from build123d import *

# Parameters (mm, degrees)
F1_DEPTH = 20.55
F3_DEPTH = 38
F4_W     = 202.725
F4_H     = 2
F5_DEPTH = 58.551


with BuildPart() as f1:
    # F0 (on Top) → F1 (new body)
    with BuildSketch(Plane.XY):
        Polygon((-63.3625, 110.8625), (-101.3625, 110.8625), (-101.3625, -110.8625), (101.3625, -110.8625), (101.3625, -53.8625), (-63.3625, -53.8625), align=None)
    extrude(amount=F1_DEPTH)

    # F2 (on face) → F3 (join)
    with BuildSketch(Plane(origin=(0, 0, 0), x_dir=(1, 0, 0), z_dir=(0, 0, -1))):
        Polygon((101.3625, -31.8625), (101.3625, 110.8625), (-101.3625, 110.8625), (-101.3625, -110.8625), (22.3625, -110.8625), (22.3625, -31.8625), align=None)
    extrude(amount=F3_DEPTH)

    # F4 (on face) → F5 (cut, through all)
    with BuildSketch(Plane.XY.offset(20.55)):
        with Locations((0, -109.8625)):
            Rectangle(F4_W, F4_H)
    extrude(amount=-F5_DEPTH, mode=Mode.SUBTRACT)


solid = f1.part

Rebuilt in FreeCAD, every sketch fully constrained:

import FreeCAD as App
import Part
import Sketcher


def add_polygon(sketch, points):
    """Adds a closed chain of lines whose ends are joined by coincident constraints."""
    first, n = sketch.GeometryCount, len(points)
    for a, b in zip(points, points[1:] + points[:1]):
        sketch.addGeometry(Part.LineSegment(App.Vector(*a, 0), App.Vector(*b, 0)), False)
    for i in range(n):
        sketch.addConstraint(Sketcher.Constraint("Coincident", first + i, 2, first + (i + 1) % n, 1))

doc = App.newDocument("Part")
body = doc.addObject("PartDesign::Body", "Body")

# Sketch on XY plane
sketch1 = body.newObject("Sketcher::SketchObject", "Sketch")
sketch1.AttachmentSupport = (doc.getObject("XY_Plane"), [""])
sketch1.MapMode = "FlatFace"
add_polygon(sketch1, [(-63.3625, 110.8625), (-101.3625, 110.8625), (-101.3625, -110.8625), (101.3625, -110.8625), (101.3625, -53.8625), (-63.3625, -53.8625)])  # lines 0-5
sketch1.addConstraint([
    Sketcher.Constraint("Horizontal", 0),
    Sketcher.Constraint("Vertical", 1),
    Sketcher.Constraint("Horizontal", 2),
    Sketcher.Constraint("Vertical", 3),
    Sketcher.Constraint("Horizontal", 4),
    Sketcher.Constraint("Vertical", 5),
    Sketcher.Constraint("Symmetric", 0, 2, 2, 2, -1, 1),
    Sketcher.Constraint("Equal", 4, 5),
    Sketcher.Constraint("DistanceX", 0, 2, 0, 1, 38.0),
    Sketcher.Constraint("DistanceY", 3, 1, 3, 2, 57.0),
    Sketcher.Constraint("DistanceX", 2, 1, 2, 2, 202.725),
])
pad1 = body.newObject("PartDesign::Pad", "Pad")
pad1.Profile = sketch1
pad1.Length = 20.55

# Sketch on XY plane
sketch2 = body.newObject("Sketcher::SketchObject", "Sketch001")
sketch2.AttachmentSupport = (doc.getObject("XY_Plane"), [""])
sketch2.MapMode = "FlatFace"
add_polygon(sketch2, [(101.3625, 31.8625), (101.3625, -110.8625), (-101.3625, -110.8625), (-101.3625, 110.8625), (22.3625, 110.8625), (22.3625, 31.8625)])  # lines 0-5
sketch2.addConstraint([
    Sketcher.Constraint("Vertical", 0),
    Sketcher.Constraint("Horizontal", 1),
    Sketcher.Constraint("Vertical", 2),
    Sketcher.Constraint("Horizontal", 3),
    Sketcher.Constraint("Vertical", 4),
    Sketcher.Constraint("Horizontal", 5),
    Sketcher.Constraint("Symmetric", 0, 2, 2, 2, -1, 1),
    Sketcher.Constraint("Equal", 5, 4),
    Sketcher.Constraint("DistanceX", 5, 1, 5, 2, 79.0),
    Sketcher.Constraint("DistanceX", 1, 2, 1, 1, 202.725),
    Sketcher.Constraint("DistanceY", 0, 2, 0, 1, 142.725),
])
pad2 = body.newObject("PartDesign::Pad", "Pad001")
pad2.Profile = sketch2
pad2.Length = 38
pad2.Reversed = True

# Sketch on XY plane
sketch3 = body.newObject("Sketcher::SketchObject", "Sketch002")
sketch3.AttachmentSupport = (doc.getObject("XY_Plane"), [""])
sketch3.MapMode = "FlatFace"
sketch3.AttachmentOffset = App.Placement(App.Vector(0, 0, 20.55), App.Rotation())
add_polygon(sketch3, [(-101.3625, -108.8625), (-101.3625, -110.8625), (101.3625, -110.8625), (101.3625, -108.8625)])  # lines 0-3
sketch3.addConstraint([
    Sketcher.Constraint("Vertical", 0),
    Sketcher.Constraint("Horizontal", 1),
    Sketcher.Constraint("Vertical", 2),
    Sketcher.Constraint("Horizontal", 3),
    Sketcher.Constraint("DistanceY", 0, 2, 0, 1, 2.0),
    Sketcher.Constraint("DistanceX", 1, 1, 1, 2, 202.725),
    Sketcher.Constraint("DistanceX", 0, 2, -1, 1, 101.3625),
    Sketcher.Constraint("DistanceY", 0, 2, -1, 1, 110.8625),
])
pocket1 = body.newObject("PartDesign::Pocket", "Pocket")
pocket1.Profile = sketch3
pocket1.Type = "ThroughAll"

doc.recompute()
